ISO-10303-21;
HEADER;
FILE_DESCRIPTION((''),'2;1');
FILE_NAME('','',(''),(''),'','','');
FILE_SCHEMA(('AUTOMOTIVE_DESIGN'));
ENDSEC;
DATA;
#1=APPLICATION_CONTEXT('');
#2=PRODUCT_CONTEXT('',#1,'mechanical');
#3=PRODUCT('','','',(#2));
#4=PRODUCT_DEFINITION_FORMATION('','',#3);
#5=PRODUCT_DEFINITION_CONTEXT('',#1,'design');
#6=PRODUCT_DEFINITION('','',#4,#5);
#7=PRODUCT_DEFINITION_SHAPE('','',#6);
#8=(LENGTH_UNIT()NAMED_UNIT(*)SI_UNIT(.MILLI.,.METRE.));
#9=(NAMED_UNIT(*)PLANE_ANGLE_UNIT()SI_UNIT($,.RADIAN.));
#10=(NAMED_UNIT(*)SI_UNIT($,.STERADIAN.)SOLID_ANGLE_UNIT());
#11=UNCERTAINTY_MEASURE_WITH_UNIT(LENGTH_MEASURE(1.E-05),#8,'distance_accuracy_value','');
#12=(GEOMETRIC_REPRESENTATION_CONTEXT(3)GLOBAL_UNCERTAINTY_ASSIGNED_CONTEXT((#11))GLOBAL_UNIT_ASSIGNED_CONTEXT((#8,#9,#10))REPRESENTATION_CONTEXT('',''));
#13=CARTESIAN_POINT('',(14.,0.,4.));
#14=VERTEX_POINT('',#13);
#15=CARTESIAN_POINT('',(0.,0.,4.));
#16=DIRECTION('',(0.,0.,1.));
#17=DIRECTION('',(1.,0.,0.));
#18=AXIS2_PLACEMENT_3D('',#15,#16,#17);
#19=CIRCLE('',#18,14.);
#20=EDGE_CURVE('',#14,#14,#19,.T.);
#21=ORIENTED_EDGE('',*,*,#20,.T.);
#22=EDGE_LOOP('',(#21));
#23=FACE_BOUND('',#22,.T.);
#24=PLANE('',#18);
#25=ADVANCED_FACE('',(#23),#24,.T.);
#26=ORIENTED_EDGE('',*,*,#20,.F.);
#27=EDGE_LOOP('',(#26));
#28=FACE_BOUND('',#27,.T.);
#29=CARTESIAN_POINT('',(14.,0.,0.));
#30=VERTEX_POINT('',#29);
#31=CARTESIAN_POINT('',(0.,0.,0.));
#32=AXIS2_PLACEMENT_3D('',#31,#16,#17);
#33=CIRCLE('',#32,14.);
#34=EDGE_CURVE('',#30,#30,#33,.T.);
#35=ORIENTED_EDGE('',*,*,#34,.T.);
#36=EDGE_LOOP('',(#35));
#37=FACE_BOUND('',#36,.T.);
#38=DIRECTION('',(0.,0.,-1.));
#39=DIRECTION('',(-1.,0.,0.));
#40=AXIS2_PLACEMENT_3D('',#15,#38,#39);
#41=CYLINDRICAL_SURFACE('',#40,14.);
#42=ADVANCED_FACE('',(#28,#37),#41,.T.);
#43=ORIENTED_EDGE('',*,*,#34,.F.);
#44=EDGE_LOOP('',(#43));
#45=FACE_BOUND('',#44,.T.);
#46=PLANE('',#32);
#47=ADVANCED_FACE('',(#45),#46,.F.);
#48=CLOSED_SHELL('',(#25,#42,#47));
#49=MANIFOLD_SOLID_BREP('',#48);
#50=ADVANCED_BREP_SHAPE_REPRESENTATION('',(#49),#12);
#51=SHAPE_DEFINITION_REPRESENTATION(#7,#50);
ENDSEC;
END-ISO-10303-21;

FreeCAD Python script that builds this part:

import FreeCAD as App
import Part
import Sketcher
Q = App.Units.Quantity

doc = App.newDocument("Part")
body = doc.addObject("PartDesign::Body", "Body")

sketch1 = body.newObject("Sketcher::SketchObject", "Sketch")
sketch1.AttachmentSupport = (doc.getObject("XY_Plane"), [""])
sketch1.MapMode = "FlatFace"
sketch1.addGeometry(Part.Circle(App.Vector(0, 0, 0), App.Vector(0, 0, 1), 14), False)
sketch1.addConstraint(Sketcher.Constraint("Coincident", 0, 3, -1, 1))
sketch1.addConstraint(Sketcher.Constraint("Diameter", 0, Q("28 mm")))
pad1 = body.newObject("PartDesign::Pad", "Pad")
pad1.Profile = sketch1
pad1.Length = 4

doc.recompute()
